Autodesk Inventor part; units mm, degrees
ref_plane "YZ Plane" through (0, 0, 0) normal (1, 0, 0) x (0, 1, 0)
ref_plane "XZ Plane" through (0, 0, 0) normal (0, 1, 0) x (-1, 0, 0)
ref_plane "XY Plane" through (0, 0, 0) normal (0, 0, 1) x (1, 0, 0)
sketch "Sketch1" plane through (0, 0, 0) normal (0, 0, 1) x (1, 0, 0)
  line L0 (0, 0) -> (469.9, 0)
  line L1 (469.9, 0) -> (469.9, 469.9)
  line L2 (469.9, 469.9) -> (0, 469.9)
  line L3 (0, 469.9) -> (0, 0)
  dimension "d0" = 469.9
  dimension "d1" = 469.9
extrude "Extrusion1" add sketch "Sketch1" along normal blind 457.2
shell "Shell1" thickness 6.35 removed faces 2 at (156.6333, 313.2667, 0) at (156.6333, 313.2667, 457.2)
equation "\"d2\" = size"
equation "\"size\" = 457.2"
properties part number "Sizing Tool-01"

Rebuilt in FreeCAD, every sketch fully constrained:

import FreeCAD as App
import Part
import Sketcher
Q = App.Units.Quantity


def faces_at(feature, points):
    """Names of the faces that lie closest to the given points."""
    faces = feature.Shape.Faces
    near = lambda p: min(range(len(faces)), key=lambda i: faces[i].distToShape(Part.Vertex(*p))[0])
    return sorted({f"Face{near(p) + 1}" for p in points})


def add_polygon(sketch, points):
    """Adds a closed chain of lines whose ends are joined by coincident constraints."""
    first, n = sketch.GeometryCount, len(points)
    for a, b in zip(points, points[1:] + points[:1]):
        sketch.addGeometry(Part.LineSegment(App.Vector(*a, 0), App.Vector(*b, 0)), False)
    for i in range(n):
        sketch.addConstraint(Sketcher.Constraint("Coincident", first + i, 2, first + (i + 1) % n, 1))

doc = App.newDocument("Part")
params = doc.addObject("Spreadsheet::Sheet", "Params")
for row, (alias, value) in enumerate([
    ("sketch1_width", "18.5 in"),
    ("pad1_length", "18 in"),
    ("thickness_wall", "0.25 in"),
], start=1):
    params.set(f"A{row}", alias)
    params.set(f"B{row}", "=" + value)
    params.setAlias(f"B{row}", alias)

body = doc.addObject("PartDesign::Body", "Body")

# Sketch on XY plane
sketch1 = body.newObject("Sketcher::SketchObject", "Sketch")
sketch1.AttachmentSupport = (doc.getObject("XY_Plane"), [""])
sketch1.MapMode = "FlatFace"
add_polygon(sketch1, [(0, 469.9), (0, 0), (469.9, 0), (469.9, 469.9)])  # lines 0-3
sketch1.addConstraint(Sketcher.Constraint("Vertical", 0))
sketch1.addConstraint(Sketcher.Constraint("Horizontal", 1))
sketch1.addConstraint(Sketcher.Constraint("Vertical", 2))
sketch1.addConstraint(Sketcher.Constraint("Horizontal", 3))
sketch1.addConstraint(Sketcher.Constraint("Coincident", 0, 2, -1, 1))
sketch1.addConstraint(Sketcher.Constraint("Equal", 3, 0))
sketch1.addConstraint(Sketcher.Constraint("DistanceX", 1, 1, 1, 2, Q("18.5 in")))
sketch1.setExpression("Constraints[10]", "Params.sketch1_width")
pad1 = body.newObject("PartDesign::Pad", "Pad")
pad1.Profile = sketch1
pad1.setExpression("Length", "Params.pad1_length")
doc.recompute()

thickness = body.newObject("PartDesign::Thickness", "Thickness")
thickness.Base = (pad1, faces_at(pad1, [(156.633, 313.267, 0), (156.633, 313.267, 457.2)]))
thickness.setExpression("Value", "Params.thickness_wall")
thickness.Reversed = True
thickness.Join = "Intersection"

doc.recompute()
